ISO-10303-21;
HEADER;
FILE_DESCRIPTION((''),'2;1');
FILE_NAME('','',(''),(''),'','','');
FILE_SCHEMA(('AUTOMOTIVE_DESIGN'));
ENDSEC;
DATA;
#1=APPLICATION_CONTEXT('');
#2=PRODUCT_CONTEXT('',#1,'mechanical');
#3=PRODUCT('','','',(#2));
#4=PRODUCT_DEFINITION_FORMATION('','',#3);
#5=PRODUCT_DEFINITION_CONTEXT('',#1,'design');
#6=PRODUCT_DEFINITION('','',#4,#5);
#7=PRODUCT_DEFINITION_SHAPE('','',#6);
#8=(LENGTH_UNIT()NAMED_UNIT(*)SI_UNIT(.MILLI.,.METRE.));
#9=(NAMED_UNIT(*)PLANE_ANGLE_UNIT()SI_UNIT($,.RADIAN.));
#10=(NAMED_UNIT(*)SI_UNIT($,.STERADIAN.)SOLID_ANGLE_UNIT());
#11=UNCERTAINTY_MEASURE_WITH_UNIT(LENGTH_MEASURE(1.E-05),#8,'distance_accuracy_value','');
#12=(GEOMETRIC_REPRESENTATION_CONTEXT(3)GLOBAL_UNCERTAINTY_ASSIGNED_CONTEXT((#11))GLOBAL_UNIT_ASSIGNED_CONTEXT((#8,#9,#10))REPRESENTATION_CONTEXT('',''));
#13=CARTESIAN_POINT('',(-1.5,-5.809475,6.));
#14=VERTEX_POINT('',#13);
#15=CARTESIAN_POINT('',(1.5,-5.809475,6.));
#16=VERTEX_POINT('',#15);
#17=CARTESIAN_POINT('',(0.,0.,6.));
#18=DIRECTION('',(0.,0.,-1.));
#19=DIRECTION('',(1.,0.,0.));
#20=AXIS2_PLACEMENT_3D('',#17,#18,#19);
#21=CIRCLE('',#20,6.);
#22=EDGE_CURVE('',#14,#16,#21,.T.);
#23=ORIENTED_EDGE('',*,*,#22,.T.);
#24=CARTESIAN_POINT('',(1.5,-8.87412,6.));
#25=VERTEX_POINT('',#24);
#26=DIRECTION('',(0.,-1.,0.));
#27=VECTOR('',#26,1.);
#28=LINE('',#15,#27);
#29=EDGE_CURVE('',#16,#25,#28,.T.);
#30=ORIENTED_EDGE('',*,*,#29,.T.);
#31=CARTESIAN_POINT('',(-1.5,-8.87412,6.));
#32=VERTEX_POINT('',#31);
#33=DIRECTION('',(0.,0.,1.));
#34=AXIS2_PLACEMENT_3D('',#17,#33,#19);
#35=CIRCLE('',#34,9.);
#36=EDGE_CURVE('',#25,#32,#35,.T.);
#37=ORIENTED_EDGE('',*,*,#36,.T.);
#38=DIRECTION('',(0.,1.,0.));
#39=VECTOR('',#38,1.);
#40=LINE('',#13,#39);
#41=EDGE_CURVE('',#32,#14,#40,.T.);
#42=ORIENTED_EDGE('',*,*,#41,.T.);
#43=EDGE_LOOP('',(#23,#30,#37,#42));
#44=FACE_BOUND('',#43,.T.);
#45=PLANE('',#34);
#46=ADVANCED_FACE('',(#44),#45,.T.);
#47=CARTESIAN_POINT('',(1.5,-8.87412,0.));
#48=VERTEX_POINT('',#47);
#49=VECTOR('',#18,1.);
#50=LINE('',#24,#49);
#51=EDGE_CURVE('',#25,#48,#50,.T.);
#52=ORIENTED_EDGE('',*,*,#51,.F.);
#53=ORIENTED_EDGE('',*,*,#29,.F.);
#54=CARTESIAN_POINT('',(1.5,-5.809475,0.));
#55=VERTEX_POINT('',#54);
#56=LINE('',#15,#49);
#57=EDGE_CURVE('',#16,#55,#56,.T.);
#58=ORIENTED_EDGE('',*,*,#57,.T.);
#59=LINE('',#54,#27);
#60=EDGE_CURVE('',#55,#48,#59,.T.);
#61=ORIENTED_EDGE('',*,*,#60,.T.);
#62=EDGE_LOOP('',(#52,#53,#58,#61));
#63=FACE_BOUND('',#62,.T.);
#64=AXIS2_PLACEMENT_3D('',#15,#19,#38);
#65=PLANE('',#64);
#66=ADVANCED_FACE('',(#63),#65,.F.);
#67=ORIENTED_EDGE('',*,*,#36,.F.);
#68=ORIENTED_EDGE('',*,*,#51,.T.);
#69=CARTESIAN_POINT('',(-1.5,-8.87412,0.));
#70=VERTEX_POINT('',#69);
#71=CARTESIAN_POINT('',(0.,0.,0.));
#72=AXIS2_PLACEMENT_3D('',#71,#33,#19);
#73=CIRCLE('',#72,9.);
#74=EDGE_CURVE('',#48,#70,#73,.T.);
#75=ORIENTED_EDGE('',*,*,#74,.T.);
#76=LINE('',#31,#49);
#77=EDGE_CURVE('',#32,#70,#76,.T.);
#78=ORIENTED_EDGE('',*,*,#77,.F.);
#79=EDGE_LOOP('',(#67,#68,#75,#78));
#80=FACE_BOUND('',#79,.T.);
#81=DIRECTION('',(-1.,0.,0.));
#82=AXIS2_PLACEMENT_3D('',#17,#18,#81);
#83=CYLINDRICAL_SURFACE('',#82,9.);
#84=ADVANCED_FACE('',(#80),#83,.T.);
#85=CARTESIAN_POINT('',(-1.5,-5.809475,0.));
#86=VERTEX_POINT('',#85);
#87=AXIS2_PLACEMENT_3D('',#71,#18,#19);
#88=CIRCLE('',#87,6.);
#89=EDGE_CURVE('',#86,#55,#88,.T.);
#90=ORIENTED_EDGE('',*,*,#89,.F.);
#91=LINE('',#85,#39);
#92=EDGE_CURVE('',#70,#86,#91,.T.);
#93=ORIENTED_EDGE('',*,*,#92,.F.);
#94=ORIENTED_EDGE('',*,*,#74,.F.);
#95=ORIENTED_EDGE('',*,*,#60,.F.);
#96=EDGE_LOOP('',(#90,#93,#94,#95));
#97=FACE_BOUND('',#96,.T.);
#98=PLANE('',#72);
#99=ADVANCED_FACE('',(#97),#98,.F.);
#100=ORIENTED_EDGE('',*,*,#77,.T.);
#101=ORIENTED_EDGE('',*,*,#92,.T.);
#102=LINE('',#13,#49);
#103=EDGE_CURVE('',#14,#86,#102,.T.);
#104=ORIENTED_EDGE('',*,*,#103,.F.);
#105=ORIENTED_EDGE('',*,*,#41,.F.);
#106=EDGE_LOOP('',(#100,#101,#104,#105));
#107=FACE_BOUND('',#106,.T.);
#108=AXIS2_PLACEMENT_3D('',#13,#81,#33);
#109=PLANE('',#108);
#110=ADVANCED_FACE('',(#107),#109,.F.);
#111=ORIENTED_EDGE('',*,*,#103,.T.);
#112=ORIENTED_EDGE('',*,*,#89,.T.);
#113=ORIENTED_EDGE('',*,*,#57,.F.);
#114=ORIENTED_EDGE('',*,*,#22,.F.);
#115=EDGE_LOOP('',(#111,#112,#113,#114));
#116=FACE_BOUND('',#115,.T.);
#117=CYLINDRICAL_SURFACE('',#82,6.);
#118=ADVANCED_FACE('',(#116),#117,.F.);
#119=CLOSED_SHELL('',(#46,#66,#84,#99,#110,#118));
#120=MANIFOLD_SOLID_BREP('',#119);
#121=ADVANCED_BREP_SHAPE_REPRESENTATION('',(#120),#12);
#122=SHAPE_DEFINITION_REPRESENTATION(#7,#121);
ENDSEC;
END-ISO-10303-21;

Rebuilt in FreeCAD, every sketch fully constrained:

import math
import FreeCAD as App
import Part
import Sketcher
from FreeCAD import Vector

doc = App.newDocument("Part")
body = doc.addObject("PartDesign::Body", "Body")

sketch1 = body.newObject("Sketcher::SketchObject", "Sketch")
sketch1.AttachmentSupport = (doc.getObject("XY_Plane"), [""])
sketch1.MapMode = "FlatFace"
sketch1.addGeometry(Part.LineSegment(Vector(1.5, -5.8, 0), Vector(1.5, -8.9, 0)), False)
sketch1.addGeometry(Part.ArcOfCircle(Part.Circle(Vector(0, 0, 0), Vector(0, 0, 1), 9), math.radians(-80), math.radians(260)), False)
sketch1.addGeometry(Part.LineSegment(Vector(-1.5, -8.9, 0), Vector(-1.5, -5.8, 0)), False)
sketch1.addGeometry(Part.ArcOfCircle(Part.Circle(Vector(0, 0, 0), Vector(0, 0, 1), 6), math.radians(-76), math.radians(256)), False)
sketch1.addConstraint(Sketcher.Constraint("Coincident", 0, 2, 1, 1))
sketch1.addConstraint(Sketcher.Constraint("Coincident", 1, 2, 2, 1))
sketch1.addConstraint(Sketcher.Constraint("Coincident", 2, 2, 3, 2))
sketch1.addConstraint(Sketcher.Constraint("Coincident", 3, 1, 0, 1))
sketch1.addConstraint(Sketcher.Constraint("Vertical", 0))
sketch1.addConstraint(Sketcher.Constraint("Vertical", 2))
sketch1.addConstraint(Sketcher.Constraint("Coincident", 1, 3, -1, 1))
sketch1.addConstraint(Sketcher.Constraint("Coincident", 3, 3, -1, 1))
sketch1.addConstraint(Sketcher.Constraint("Horizontal", 0, 2, 1, 2))
sketch1.addConstraint(Sketcher.Constraint("Radius", 1, 9.0))
sketch1.addConstraint(Sketcher.Constraint("Radius", 3, 6.0))
sketch1.addConstraint(Sketcher.Constraint("DistanceX", 1, 2, 0, 2, 3.0))
pad1 = body.newObject("PartDesign::Pad", "Pad")
pad1.Profile = sketch1
pad1.Length = 6

doc.recompute()
